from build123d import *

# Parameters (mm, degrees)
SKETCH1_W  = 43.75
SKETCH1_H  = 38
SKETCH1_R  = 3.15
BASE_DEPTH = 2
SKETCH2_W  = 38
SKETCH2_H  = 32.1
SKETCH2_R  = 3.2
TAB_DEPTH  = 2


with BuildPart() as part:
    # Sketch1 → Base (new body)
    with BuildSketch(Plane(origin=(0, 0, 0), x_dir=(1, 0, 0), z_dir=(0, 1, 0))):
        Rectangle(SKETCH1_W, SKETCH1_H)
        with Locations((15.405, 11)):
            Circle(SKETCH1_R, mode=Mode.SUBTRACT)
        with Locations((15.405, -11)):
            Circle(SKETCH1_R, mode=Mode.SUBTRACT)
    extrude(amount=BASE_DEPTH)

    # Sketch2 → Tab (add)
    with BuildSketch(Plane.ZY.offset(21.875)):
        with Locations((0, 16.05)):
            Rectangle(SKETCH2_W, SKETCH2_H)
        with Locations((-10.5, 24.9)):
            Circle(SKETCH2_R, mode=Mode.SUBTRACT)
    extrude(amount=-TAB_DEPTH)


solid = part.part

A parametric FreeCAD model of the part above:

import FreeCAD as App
import Part
import Sketcher
from FreeCAD import Vector
Q = App.Units.Quantity


def add_polygon(sketch, points):
    """Adds a closed chain of lines whose ends are joined by coincident constraints."""
    first, n = sketch.GeometryCount, len(points)
    for a, b in zip(points, points[1:] + points[:1]):
        sketch.addGeometry(Part.LineSegment(App.Vector(*a, 0), App.Vector(*b, 0)), False)
    for i in range(n):
        sketch.addConstraint(Sketcher.Constraint("Coincident", first + i, 2, first + (i + 1) % n, 1))

doc = App.newDocument("Part")
body = doc.addObject("PartDesign::Body", "Body")

sketch1 = body.newObject("Sketcher::SketchObject", "Sketch")
sketch1.AttachmentSupport = (doc.getObject("XZ_Plane"), [""])
sketch1.MapMode = "FlatFace"
add_polygon(sketch1, [(-21.9, -19), (-21.9, 19), (21.9, 19), (21.9, -19)])
sketch1.addGeometry(Part.Circle(Vector(15.4, 11, 0), Vector(0, 0, 1), 3.1), False)
sketch1.addGeometry(Part.Circle(Vector(15.4, -11, 0), Vector(0, 0, 1), 3.1), False)
sketch1.addConstraint(Sketcher.Constraint("Vertical", 0))
sketch1.addConstraint(Sketcher.Constraint("Horizontal", 1))
sketch1.addConstraint(Sketcher.Constraint("Vertical", 2))
sketch1.addConstraint(Sketcher.Constraint("Horizontal", 3))
sketch1.addConstraint(Sketcher.Constraint("Equal", 4, 5))
sketch1.addConstraint(Sketcher.Constraint("Symmetric", 0, 2, 2, 2, -1, 1))
sketch1.addConstraint(Sketcher.Constraint("Symmetric", 4, 3, 5, 3, -1))
sketch1.addConstraint(Sketcher.Constraint("Diameter", 4, Q("6.3 mm")))
sketch1.addConstraint(Sketcher.Constraint("DistanceY", 0, 1, 0, 2, Q("38 mm")))
sketch1.addConstraint(Sketcher.Constraint("DistanceY", -1, 1, 4, 3, Q("11 mm")))
sketch1.addConstraint(Sketcher.Constraint("DistanceX", 1, 1, 1, 2, Q("43.75 mm")))
sketch1.addConstraint(Sketcher.Constraint("DistanceX", 0, 2, 4, 3, Q("37.28 mm")))
pad1 = body.newObject("PartDesign::Pad", "Pad")
pad1.Profile = sketch1
pad1.Length = 2
pad1.Reversed = True

sketch2 = body.newObject("Sketcher::SketchObject", "Sketch001")
sketch2.AttachmentSupport = (doc.getObject("YZ_Plane"), [""])
sketch2.MapMode = "FlatFace"
sketch2.AttachmentOffset = App.Placement(Vector(0, 0, -21.875), App.Rotation())
add_polygon(sketch2, [(32.1, -19), (0, -19), (0, 19), (32.1, 19)])
sketch2.addGeometry(Part.Circle(Vector(24.9, -10.5, 0), Vector(0, 0, 1), 3.2), False)
sketch2.addConstraint(Sketcher.Constraint("Horizontal", 0))
sketch2.addConstraint(Sketcher.Constraint("Vertical", 1))
sketch2.addConstraint(Sketcher.Constraint("Horizontal", 2))
sketch2.addConstraint(Sketcher.Constraint("Vertical", 3))
sketch2.addConstraint(Sketcher.Constraint("Symmetric", 0, 2, 1, 2, -1, 1))
sketch2.addConstraint(Sketcher.Constraint("Diameter", 4, Q("6.4 mm")))
sketch2.addConstraint(Sketcher.Constraint("DistanceY", 1, 1, 1, 2, Q("38 mm")))
sketch2.addConstraint(Sketcher.Constraint("DistanceX", 0, 2, 0, 1, Q("32.1 mm")))
sketch2.addConstraint(Sketcher.Constraint("DistanceX", -1, 1, 4, 3, Q("24.9 mm")))
sketch2.addConstraint(Sketcher.Constraint("DistanceY", 4, 3, -1, 1, Q("10.5 mm")))
pad2 = body.newObject("PartDesign::Pad", "Pad001")
pad2.Profile = sketch2
pad2.Length = 2

doc.recompute()
